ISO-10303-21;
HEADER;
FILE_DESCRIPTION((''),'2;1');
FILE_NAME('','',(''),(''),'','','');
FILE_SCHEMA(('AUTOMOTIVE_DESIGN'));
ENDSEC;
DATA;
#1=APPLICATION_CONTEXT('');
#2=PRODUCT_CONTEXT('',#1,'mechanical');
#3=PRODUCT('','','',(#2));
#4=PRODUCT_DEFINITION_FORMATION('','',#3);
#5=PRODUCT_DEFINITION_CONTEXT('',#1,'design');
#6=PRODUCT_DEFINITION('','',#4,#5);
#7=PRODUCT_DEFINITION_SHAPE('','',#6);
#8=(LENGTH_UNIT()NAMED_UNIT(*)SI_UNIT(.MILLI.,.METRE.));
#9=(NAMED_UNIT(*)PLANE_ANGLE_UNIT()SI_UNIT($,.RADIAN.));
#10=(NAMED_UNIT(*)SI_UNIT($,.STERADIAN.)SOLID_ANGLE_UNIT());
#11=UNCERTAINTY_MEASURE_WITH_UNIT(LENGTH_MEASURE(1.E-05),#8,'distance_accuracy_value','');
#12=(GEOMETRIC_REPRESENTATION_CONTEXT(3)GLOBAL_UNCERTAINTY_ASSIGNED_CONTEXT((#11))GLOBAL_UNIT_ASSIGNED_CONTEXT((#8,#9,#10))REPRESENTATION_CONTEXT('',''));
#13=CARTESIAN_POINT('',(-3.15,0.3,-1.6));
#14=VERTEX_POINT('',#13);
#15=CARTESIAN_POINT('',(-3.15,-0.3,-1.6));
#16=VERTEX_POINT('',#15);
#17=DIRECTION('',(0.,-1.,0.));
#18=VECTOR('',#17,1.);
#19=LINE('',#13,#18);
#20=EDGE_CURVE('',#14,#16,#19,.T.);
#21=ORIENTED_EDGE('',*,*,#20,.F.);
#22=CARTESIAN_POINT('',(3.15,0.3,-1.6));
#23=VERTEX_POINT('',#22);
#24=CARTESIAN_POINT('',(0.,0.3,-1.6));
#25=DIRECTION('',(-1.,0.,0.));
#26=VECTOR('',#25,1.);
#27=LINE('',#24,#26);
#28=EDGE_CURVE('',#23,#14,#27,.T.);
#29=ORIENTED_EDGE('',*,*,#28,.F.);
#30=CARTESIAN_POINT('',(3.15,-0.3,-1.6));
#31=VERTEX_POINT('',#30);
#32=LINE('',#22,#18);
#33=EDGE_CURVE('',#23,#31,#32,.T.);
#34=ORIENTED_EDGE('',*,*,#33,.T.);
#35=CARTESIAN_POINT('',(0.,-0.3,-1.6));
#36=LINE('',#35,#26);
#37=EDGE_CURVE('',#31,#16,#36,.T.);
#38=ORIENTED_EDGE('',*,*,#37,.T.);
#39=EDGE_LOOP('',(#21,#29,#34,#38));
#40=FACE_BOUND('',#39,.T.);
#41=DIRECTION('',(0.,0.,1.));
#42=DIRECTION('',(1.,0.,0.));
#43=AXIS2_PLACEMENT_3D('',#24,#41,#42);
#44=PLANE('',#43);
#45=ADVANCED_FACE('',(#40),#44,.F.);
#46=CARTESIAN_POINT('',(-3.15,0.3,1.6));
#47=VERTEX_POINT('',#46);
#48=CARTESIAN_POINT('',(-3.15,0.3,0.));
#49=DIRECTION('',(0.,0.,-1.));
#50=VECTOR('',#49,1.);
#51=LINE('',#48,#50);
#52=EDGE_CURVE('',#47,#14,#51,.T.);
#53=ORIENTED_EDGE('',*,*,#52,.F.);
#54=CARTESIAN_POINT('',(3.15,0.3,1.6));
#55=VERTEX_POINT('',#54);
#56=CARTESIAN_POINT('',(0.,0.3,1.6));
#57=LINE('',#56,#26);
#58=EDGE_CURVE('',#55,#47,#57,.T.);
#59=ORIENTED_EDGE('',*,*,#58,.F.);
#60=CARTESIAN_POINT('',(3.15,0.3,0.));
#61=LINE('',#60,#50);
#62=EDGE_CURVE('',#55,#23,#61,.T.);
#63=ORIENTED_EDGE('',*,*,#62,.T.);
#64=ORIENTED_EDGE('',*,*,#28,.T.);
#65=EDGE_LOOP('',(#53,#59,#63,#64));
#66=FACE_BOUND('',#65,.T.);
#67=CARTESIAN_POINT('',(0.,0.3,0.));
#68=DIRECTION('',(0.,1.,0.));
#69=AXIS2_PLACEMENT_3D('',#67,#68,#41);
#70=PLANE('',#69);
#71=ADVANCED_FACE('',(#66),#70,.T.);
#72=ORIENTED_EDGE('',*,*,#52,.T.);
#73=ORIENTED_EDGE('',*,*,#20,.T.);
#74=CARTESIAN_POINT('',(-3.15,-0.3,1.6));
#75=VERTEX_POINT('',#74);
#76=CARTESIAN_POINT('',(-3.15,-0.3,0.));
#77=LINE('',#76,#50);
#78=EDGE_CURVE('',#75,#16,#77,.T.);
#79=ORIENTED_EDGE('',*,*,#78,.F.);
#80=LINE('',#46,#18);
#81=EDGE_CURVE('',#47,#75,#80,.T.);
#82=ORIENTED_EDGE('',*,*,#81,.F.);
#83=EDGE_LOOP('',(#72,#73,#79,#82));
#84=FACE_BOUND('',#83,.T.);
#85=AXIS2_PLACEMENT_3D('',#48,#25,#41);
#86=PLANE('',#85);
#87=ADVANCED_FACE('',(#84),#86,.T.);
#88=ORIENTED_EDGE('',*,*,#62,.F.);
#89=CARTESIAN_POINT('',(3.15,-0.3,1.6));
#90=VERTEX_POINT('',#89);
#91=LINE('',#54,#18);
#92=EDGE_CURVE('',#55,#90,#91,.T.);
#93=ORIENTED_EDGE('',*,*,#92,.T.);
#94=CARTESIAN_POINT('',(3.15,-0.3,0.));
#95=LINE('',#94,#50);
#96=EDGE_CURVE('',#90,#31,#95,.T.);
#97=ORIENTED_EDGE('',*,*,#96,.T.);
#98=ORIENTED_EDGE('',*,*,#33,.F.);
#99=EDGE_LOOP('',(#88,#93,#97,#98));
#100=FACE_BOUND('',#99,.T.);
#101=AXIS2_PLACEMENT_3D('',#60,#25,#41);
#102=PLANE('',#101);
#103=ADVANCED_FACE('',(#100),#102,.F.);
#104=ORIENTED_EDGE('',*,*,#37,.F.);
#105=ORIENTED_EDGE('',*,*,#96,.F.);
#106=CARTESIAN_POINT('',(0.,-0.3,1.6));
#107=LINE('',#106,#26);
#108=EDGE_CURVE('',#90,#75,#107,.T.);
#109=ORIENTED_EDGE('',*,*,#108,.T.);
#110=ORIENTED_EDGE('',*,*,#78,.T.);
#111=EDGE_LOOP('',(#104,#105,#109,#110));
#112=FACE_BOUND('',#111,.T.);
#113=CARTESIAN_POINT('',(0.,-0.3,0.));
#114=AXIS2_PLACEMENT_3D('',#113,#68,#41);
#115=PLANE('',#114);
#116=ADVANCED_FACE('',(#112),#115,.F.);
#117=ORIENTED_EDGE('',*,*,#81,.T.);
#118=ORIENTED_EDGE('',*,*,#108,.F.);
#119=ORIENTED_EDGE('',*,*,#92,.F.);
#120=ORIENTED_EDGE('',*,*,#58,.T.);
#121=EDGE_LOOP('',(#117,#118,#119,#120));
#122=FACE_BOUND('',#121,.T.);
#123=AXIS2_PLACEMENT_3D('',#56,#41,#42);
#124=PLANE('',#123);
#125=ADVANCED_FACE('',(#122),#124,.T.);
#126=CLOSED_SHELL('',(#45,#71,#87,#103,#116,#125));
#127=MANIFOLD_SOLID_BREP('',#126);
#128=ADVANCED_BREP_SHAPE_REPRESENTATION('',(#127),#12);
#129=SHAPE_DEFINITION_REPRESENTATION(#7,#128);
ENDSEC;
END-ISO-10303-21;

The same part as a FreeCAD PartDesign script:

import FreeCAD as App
import Part
import Sketcher

V = App.Vector


def add_polygon(sketch, points):
    """Adds a closed chain of lines whose ends are joined by coincident constraints."""
    first, n = sketch.GeometryCount, len(points)
    for a, b in zip(points, points[1:] + points[:1]):
        sketch.addGeometry(Part.LineSegment(App.Vector(*a, 0), App.Vector(*b, 0)), False)
    for i in range(n):
        sketch.addConstraint(Sketcher.Constraint("Coincident", first + i, 2, first + (i + 1) % n, 1))

doc = App.newDocument("Part")
body = doc.addObject("PartDesign::Body", "Body")

# Sketch on XZ plane
sketch1 = body.newObject("Sketcher::SketchObject", "Sketch")
sketch1.AttachmentSupport = (doc.getObject("XZ_Plane"), [""])
sketch1.MapMode = "FlatFace"
add_polygon(sketch1, [(-3.1, -1.6), (-3.1, 1.6), (3.1, 1.6), (3.1, -1.6)])  # lines 0-3
sketch1.addConstraint(Sketcher.Constraint("Vertical", 0))
sketch1.addConstraint(Sketcher.Constraint("Horizontal", 1))
sketch1.addConstraint(Sketcher.Constraint("Vertical", 2))
sketch1.addConstraint(Sketcher.Constraint("Horizontal", 3))
sketch1.addConstraint(Sketcher.Constraint("Symmetric", 0, 2, 2, 2, -1, 1))
sketch1.addConstraint(Sketcher.Constraint("DistanceX", 1, 1, 1, 2, 6.3))
sketch1.addConstraint(Sketcher.Constraint("DistanceY", 0, 1, 0, 2, 3.2))
pad1 = body.newObject("PartDesign::Pad", "Pad")
pad1.Profile = sketch1
pad1.Length = 0.6
pad1.Midplane = True

doc.recompute()
